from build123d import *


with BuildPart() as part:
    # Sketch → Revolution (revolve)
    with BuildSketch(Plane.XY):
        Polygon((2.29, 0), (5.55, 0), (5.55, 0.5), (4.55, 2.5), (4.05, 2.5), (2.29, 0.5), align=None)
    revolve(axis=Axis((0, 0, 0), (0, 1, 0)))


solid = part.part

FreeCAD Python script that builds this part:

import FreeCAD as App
import Part
import Sketcher

V = App.Vector
Q = App.Units.Quantity

doc = App.newDocument("Part")
body = doc.addObject("PartDesign::Body", "Body")

sketch1 = body.newObject("Sketcher::SketchObject", "Sketch")
sketch1.AttachmentSupport = (doc.getObject("XY_Plane"), [""])
sketch1.MapMode = "FlatFace"
sketch1.addGeometry(Part.LineSegment(V(2.3, 0, 0), V(5.5, 0, 0)), False)
sketch1.addGeometry(Part.LineSegment(V(5.5, 0, 0), V(5.5, 0.5, 0)), False)
sketch1.addGeometry(Part.LineSegment(V(5.5, 0.5, 0), V(4.5, 2.5, 0)), False)
sketch1.addGeometry(Part.LineSegment(V(4.5, 2.5, 0), V(4, 2.5, 0)), False)
sketch1.addGeometry(Part.LineSegment(V(4, 2.5, 0), V(2.3, 0.5, 0)), False)
sketch1.addGeometry(Part.LineSegment(V(2.3, 0.5, 0), V(2.3, 0, 0)), False)
sketch1.addConstraint(Sketcher.Constraint("Coincident", 0, 2, 1, 1))
sketch1.addConstraint(Sketcher.Constraint("Coincident", 1, 2, 2, 1))
sketch1.addConstraint(Sketcher.Constraint("Coincident", 2, 2, 3, 1))
sketch1.addConstraint(Sketcher.Constraint("Coincident", 3, 2, 4, 1))
sketch1.addConstraint(Sketcher.Constraint("Coincident", 4, 2, 5, 1))
sketch1.addConstraint(Sketcher.Constraint("Coincident", 5, 2, 0, 1))
sketch1.addConstraint(Sketcher.Constraint("Horizontal", 0))
sketch1.addConstraint(Sketcher.Constraint("Vertical", 1))
sketch1.addConstraint(Sketcher.Constraint("Horizontal", 3))
sketch1.addConstraint(Sketcher.Constraint("Vertical", 5))
sketch1.addConstraint(Sketcher.Constraint("PointOnObject", 0, 2, -1))
sketch1.addConstraint(Sketcher.Constraint("Horizontal", 1, 2, 4, 2))
sketch1.addConstraint(Sketcher.Constraint("Equal", 3, 1))
sketch1.addConstraint(Sketcher.Constraint("DistanceX", 3, 2, 3, 1, Q("0.5 mm")))
sketch1.addConstraint(Sketcher.Constraint("DistanceX", 2, 2, 1, 2, Q("1 mm")))
sketch1.addConstraint(Sketcher.Constraint("DistanceY", 1, 2, 2, 2, Q("2 mm")))
sketch1.addConstraint(Sketcher.Constraint("DistanceX", 0, 1, 0, 2, Q("3.26 mm")))
sketch1.addConstraint(Sketcher.Constraint("DistanceX", -1, 1, 0, 2, Q("5.55 mm")))
revolution = body.newObject("PartDesign::Revolution", "Revolution")
revolution.Profile = sketch1
revolution.ReferenceAxis = (sketch1, ["V_Axis"])
revolution.Angle = 360

doc.recompute()
